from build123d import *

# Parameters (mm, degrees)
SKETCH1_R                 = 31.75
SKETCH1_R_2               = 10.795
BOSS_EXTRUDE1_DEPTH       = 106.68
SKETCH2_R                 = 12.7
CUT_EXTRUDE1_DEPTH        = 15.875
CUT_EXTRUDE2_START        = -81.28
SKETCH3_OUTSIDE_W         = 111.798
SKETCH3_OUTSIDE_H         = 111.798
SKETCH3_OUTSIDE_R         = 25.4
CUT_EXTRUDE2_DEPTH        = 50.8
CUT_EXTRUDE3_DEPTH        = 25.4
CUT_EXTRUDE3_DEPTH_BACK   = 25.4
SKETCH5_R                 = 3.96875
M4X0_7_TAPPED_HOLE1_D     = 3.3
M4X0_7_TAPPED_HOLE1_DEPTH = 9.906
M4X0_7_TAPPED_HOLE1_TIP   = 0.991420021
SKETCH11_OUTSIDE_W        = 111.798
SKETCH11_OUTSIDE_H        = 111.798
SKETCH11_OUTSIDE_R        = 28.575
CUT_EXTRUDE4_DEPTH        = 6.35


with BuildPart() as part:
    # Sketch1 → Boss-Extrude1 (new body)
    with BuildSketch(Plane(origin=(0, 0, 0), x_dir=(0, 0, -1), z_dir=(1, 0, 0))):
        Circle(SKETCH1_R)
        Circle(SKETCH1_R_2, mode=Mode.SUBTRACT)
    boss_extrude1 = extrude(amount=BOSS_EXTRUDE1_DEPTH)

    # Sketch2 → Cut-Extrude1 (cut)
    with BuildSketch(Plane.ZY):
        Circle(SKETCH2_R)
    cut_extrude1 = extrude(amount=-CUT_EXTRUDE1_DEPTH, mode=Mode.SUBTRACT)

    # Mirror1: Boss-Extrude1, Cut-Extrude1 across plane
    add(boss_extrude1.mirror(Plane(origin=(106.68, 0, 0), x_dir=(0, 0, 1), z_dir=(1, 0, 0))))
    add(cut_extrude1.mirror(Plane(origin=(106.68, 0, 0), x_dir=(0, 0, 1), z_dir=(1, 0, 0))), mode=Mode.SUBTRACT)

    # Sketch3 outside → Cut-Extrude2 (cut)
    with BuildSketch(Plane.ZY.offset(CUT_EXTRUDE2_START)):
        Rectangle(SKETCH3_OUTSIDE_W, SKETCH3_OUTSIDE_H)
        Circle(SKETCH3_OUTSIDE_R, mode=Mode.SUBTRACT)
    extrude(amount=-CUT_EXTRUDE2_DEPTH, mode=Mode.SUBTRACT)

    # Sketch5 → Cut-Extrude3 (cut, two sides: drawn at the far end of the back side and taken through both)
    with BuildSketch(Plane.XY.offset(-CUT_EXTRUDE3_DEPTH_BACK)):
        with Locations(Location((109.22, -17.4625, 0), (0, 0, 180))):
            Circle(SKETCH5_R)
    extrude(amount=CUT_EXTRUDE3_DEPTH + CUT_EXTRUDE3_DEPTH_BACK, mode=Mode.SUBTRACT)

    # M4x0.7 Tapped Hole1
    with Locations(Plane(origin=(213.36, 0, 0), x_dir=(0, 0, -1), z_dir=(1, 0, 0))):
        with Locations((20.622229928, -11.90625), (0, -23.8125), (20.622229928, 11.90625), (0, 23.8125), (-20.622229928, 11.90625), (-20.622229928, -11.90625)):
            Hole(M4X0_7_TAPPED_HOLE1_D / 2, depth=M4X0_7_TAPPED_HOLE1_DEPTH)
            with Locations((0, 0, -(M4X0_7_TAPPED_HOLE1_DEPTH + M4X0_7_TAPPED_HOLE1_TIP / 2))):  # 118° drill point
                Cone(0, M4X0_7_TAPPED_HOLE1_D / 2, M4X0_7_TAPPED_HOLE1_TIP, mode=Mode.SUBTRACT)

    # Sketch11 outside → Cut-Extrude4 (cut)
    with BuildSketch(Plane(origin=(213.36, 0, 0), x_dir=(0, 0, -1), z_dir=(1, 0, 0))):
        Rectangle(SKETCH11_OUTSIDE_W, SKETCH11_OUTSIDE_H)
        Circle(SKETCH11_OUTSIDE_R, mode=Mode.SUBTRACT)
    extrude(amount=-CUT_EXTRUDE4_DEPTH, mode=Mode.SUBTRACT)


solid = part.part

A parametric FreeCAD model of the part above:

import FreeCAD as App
import Part
import Sketcher
from FreeCAD import Vector
Q = App.Units.Quantity

doc = App.newDocument("Part")
params = doc.addObject("Spreadsheet::Sheet", "Params")
for row, (alias, value) in enumerate([
    ("sketch1_diameter", "2.5 in"),
    ("sketch1_diameter2", "0.85 in"),
    ("pad1_length", "4.2 in"),
    ("sketch2_diameter", "1 in"),
    ("pocket1_length", "0.625 in"),
    ("sketch3_diameter", "2 in"),
    ("pocket2_length", "2 in"),
    ("sketch4_diameter", "0.3125 in"),
    ("hole_diameter", "3.3 mm"),
    ("hole_depth", "0.39 in"),
    ("sketch6_diameter", "2.25 in"),
    ("pocket4_length", "0.25 in"),
], start=1):
    params.set(f"A{row}", alias)
    params.set(f"B{row}", "=" + value)
    params.setAlias(f"B{row}", alias)

body = doc.addObject("PartDesign::Body", "Body")

# Sketch on YZ plane
sketch1 = body.newObject("Sketcher::SketchObject", "Sketch")
sketch1.AttachmentSupport = (doc.getObject("YZ_Plane"), [""])
sketch1.MapMode = "FlatFace"
sketch1.addGeometry([
    Part.Circle(Vector(0, 0, 0), Vector(0, 0, 1), 31.75),
    Part.Circle(Vector(0, 0, 0), Vector(0, 0, 1), 10.795),
], False)
sketch1.addConstraint([
    Sketcher.Constraint("Coincident", 0, 3, -1, 1),
    Sketcher.Constraint("Coincident", 1, 3, -1, 1),
    Sketcher.Constraint("Diameter", 0, Q("2.5 in")),
    Sketcher.Constraint("Diameter", 1, Q("0.85 in")),
])
sketch1.setExpression("Constraints[2]", "Params.sketch1_diameter")
sketch1.setExpression("Constraints[3]", "Params.sketch1_diameter2")
pad1 = body.newObject("PartDesign::Pad", "Pad")
pad1.Profile = sketch1
pad1.setExpression("Length", "Params.pad1_length")

# Sketch on YZ plane
sketch2 = body.newObject("Sketcher::SketchObject", "Sketch001")
sketch2.AttachmentSupport = (doc.getObject("YZ_Plane"), [""])
sketch2.MapMode = "FlatFace"
sketch2.addGeometry(Part.Circle(Vector(0, 0, 0), Vector(0, 0, 1), 12.7), False)
sketch2.addConstraint([
    Sketcher.Constraint("Coincident", 0, 3, -1, 1),
    Sketcher.Constraint("Diameter", 0, Q("1 in")),
])
sketch2.setExpression("Constraints[1]", "Params.sketch2_diameter")
pocket1 = body.newObject("PartDesign::Pocket", "Pocket")
pocket1.Profile = sketch2
pocket1.setExpression("Length", "Params.pocket1_length")
pocket1.Reversed = True
doc.recompute()

datumplane = body.newObject("PartDesign::Plane", "DatumPlane")
datumplane.AttachmentSupport = (doc.getObject("YZ_Plane"), [""])
datumplane.MapMode = "FlatFace"
datumplane.AttachmentOffset = App.Placement(Vector(0, 0, 4.2 * 25.4), App.Rotation())
mirrored = body.newObject("PartDesign::Mirrored", "Mirrored")
mirrored.Originals = [pad1, pocket1]
mirrored.MirrorPlane = (datumplane, [""])
body.Tip = mirrored

# Sketch on YZ plane
sketch3 = body.newObject("Sketcher::SketchObject", "Sketch002")
sketch3.AttachmentSupport = (doc.getObject("YZ_Plane"), [""])
sketch3.MapMode = "FlatFace"
sketch3.AttachmentOffset = App.Placement(Vector(0, 0, 3.2 * 25.4), App.Rotation())
sketch3.addGeometry([
    Part.LineSegment(Vector(55.899, -55.899, 0), Vector(-55.899, -55.899, 0)),  # 0
    Part.LineSegment(Vector(-55.899, -55.899, 0), Vector(-55.899, 55.899, 0)),  # 1
    Part.LineSegment(Vector(-55.899, 55.899, 0), Vector(55.899, 55.899, 0)),  # 2
    Part.LineSegment(Vector(55.899, 55.899, 0), Vector(55.899, -55.899, 0)),  # 3
    Part.Circle(Vector(0, 0, 0), Vector(0, 0, 1), 25.4),  # 4
], False)
sketch3.addConstraint([
    Sketcher.Constraint("Coincident", 0, 2, 1, 1),
    Sketcher.Constraint("Coincident", 1, 2, 2, 1),
    Sketcher.Constraint("Coincident", 2, 2, 3, 1),
    Sketcher.Constraint("Coincident", 3, 2, 0, 1),
    Sketcher.Constraint("Horizontal", 0),
    Sketcher.Constraint("Vertical", 1),
    Sketcher.Constraint("Horizontal", 2),
    Sketcher.Constraint("Vertical", 3),
    Sketcher.Constraint("Coincident", 4, 3, -1, 1),
    Sketcher.Constraint("Symmetric", 0, 2, 2, 2, -1, 1),
    Sketcher.Constraint("Equal", 2, 1),
    Sketcher.Constraint("Diameter", 4, Q("2 in")),
    Sketcher.Constraint("DistanceX", 0, 2, 0, 1, Q("111.798 mm")),
])
sketch3.setExpression("Constraints[11]", "Params.sketch3_diameter")
pocket2 = body.newObject("PartDesign::Pocket", "Pocket001")
pocket2.Profile = sketch3
pocket2.setExpression("Length", "Params.pocket2_length")
pocket2.Reversed = True

# Sketch on XY plane
sketch4 = body.newObject("Sketcher::SketchObject", "Sketch003")
sketch4.AttachmentSupport = (doc.getObject("XY_Plane"), [""])
sketch4.MapMode = "FlatFace"
sketch4.addGeometry(Part.Circle(Vector(109.22, -17.4625, 0), Vector(0, 0, 1), 3.96875), False)
sketch4.addConstraint([
    Sketcher.Constraint("Diameter", 0, Q("0.3125 in")),
    Sketcher.Constraint("DistanceX", -1, 1, 0, 3, Q("4.3 in")),
    Sketcher.Constraint("DistanceY", 0, 3, -1, 1, Q("0.6875 in")),
])
sketch4.setExpression("Constraints[0]", "Params.sketch4_diameter")
pocket3 = body.newObject("PartDesign::Pocket", "Pocket002")
pocket3.Profile = sketch4
pocket3.Type = "ThroughAll"
pocket3.Midplane = True

# Sketch on YZ plane
sketch5 = body.newObject("Sketcher::SketchObject", "Sketch004")
sketch5.AttachmentSupport = (doc.getObject("YZ_Plane"), [""])
sketch5.MapMode = "FlatFace"
sketch5.AttachmentOffset = App.Placement(Vector(0, 0, 8.4 * 25.4), App.Rotation())
sketch5.addGeometry([
    Part.Circle(Vector(-11.90625, -20.62223, 0), Vector(0, 0, 1), 1.65),  # 0
    Part.Circle(Vector(-23.8125, 0, 0), Vector(0, 0, 1), 1.65),  # 1
    Part.Circle(Vector(11.90625, -20.62223, 0), Vector(0, 0, 1), 1.65),  # 2
    Part.Circle(Vector(23.8125, 0, 0), Vector(0, 0, 1), 1.65),  # 3
    Part.Circle(Vector(11.90625, 20.62223, 0), Vector(0, 0, 1), 1.65),  # 4
    Part.Circle(Vector(-11.90625, 20.62223, 0), Vector(0, 0, 1), 1.65),  # 5
], False)
sketch5.addConstraint([
    Sketcher.Constraint("Equal", 0, 1),
    Sketcher.Constraint("Equal", 1, 2),
    Sketcher.Constraint("Equal", 2, 3),
    Sketcher.Constraint("Equal", 3, 4),
    Sketcher.Constraint("Equal", 4, 5),
    Sketcher.Constraint("Symmetric", 1, 3, 3, 3, -1, 1),
    Sketcher.Constraint("Symmetric", 0, 3, 4, 3, -1, 1),
    Sketcher.Constraint("Symmetric", 2, 3, 5, 3, -1, 1),
    Sketcher.Constraint("Symmetric", 0, 3, 2, 3, -2),
    Sketcher.Constraint("PointOnObject", 1, 3, -1),
    Sketcher.Constraint("Diameter", 0, Q("3.3 mm")),
    Sketcher.Constraint("DistanceX", 0, 3, -1, 1, Q("0.46875 in")),
    Sketcher.Constraint("DistanceX", 1, 3, -1, 1, Q("0.9375 in")),
    Sketcher.Constraint("DistanceY", 0, 3, -1, 1, Q("20.62223 mm")),
])
doc.recompute()
hole = body.newObject("PartDesign::Hole", "Hole")
hole.Profile = sketch5
hole.ThreadType = "None"
hole.setExpression("Diameter", "Params.hole_diameter")
hole.DepthType = "Dimension"
hole.setExpression("Depth", "Params.hole_depth")
hole.DrillPoint = "Angled"
hole.DrillPointAngle = 118

# Sketch on YZ plane
sketch6 = body.newObject("Sketcher::SketchObject", "Sketch005")
sketch6.AttachmentSupport = (doc.getObject("YZ_Plane"), [""])
sketch6.MapMode = "FlatFace"
sketch6.AttachmentOffset = App.Placement(Vector(0, 0, 8.4 * 25.4), App.Rotation())
sketch6.addGeometry([
    Part.LineSegment(Vector(55.899, 55.899, 0), Vector(-55.899, 55.899, 0)),  # 0
    Part.LineSegment(Vector(-55.899, 55.899, 0), Vector(-55.899, -55.899, 0)),  # 1
    Part.LineSegment(Vector(-55.899, -55.899, 0), Vector(55.899, -55.899, 0)),  # 2
    Part.LineSegment(Vector(55.899, -55.899, 0), Vector(55.899, 55.899, 0)),  # 3
    Part.Circle(Vector(0, 0, 0), Vector(0, 0, 1), 28.575),  # 4
], False)
sketch6.addConstraint([
    Sketcher.Constraint("Coincident", 0, 2, 1, 1),
    Sketcher.Constraint("Coincident", 1, 2, 2, 1),
    Sketcher.Constraint("Coincident", 2, 2, 3, 1),
    Sketcher.Constraint("Coincident", 3, 2, 0, 1),
    Sketcher.Constraint("Horizontal", 0),
    Sketcher.Constraint("Vertical", 1),
    Sketcher.Constraint("Horizontal", 2),
    Sketcher.Constraint("Vertical", 3),
    Sketcher.Constraint("Coincident", 4, 3, -1, 1),
    Sketcher.Constraint("Symmetric", 0, 2, 2, 2, -1, 1),
    Sketcher.Constraint("Equal", 2, 1),
    Sketcher.Constraint("Diameter", 4, Q("2.25 in")),
    Sketcher.Constraint("DistanceX", 0, 2, 0, 1, Q("111.798 mm")),
])
sketch6.setExpression("Constraints[11]", "Params.sketch6_diameter")
pocket4 = body.newObject("PartDesign::Pocket", "Pocket003")
pocket4.Profile = sketch6
pocket4.setExpression("Length", "Params.pocket4_length")

doc.recompute()
